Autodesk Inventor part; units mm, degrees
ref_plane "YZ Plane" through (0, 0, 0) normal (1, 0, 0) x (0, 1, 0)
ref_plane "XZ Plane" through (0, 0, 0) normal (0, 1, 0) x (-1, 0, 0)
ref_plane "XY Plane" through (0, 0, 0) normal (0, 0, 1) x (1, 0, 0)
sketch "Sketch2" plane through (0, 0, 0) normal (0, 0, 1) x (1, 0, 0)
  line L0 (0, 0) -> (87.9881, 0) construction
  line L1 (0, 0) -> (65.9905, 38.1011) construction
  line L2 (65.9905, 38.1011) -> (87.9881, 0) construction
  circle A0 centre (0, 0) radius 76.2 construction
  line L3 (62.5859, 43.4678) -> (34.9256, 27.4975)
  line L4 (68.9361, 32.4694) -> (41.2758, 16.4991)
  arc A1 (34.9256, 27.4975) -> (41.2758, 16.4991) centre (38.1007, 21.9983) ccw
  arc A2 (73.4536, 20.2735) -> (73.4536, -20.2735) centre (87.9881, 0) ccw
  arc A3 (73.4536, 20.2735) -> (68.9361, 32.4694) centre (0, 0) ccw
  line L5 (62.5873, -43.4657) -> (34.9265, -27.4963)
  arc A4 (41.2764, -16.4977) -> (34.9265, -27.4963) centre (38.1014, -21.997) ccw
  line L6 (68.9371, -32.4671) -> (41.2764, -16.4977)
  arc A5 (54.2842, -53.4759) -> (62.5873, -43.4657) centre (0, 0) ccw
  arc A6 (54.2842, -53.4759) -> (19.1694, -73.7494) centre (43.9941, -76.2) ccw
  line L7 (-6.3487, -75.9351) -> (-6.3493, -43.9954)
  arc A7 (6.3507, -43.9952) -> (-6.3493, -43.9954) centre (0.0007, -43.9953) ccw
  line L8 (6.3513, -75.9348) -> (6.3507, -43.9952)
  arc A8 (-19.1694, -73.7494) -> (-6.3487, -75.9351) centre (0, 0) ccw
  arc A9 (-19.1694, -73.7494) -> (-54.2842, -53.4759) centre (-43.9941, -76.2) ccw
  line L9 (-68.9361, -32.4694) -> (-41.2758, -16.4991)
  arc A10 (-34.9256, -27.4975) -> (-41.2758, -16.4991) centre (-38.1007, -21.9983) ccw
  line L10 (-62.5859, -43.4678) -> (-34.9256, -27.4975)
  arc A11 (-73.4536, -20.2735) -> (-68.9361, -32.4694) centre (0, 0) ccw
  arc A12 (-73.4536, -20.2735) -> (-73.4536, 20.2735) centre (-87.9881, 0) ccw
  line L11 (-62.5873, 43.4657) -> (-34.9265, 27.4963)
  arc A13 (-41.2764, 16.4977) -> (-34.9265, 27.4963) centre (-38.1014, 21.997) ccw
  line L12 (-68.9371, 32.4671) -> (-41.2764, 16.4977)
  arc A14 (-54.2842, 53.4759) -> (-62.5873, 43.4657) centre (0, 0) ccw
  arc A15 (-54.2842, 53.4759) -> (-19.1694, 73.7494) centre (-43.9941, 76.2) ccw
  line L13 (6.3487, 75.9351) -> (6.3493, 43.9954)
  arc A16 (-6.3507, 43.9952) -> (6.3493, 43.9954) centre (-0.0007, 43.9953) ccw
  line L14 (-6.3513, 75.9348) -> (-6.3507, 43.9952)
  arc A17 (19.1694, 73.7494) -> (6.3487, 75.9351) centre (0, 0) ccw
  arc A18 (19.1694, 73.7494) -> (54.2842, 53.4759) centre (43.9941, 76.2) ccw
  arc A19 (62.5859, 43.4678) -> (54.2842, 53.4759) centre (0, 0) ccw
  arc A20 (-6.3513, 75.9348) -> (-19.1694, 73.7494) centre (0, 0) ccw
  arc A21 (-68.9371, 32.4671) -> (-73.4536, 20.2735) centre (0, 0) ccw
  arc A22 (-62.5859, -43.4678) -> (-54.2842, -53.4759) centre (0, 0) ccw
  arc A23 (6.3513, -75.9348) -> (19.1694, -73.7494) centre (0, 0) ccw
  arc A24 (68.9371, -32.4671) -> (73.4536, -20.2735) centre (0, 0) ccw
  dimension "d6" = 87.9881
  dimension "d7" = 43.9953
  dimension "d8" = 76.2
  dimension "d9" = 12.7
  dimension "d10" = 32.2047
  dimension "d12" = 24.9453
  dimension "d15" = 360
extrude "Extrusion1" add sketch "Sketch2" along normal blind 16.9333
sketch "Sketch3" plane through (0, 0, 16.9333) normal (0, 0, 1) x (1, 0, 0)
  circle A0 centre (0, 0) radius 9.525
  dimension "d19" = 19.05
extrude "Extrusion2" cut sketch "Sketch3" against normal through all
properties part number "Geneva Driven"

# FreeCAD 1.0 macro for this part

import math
import FreeCAD as App
import Part
import Sketcher

V = App.Vector
Q = App.Units.Quantity

doc = App.newDocument("Part")
body = doc.addObject("PartDesign::Body", "Body")

sketch1 = body.newObject("Sketcher::SketchObject", "Sketch")
sketch1.AttachmentSupport = (doc.getObject("XY_Plane"), [""])
sketch1.MapMode = "FlatFace"
sketch1.addGeometry(Part.LineSegment(V(34.9256, 27.4975, 0), V(62.5859, 43.4678, 0)), False)
sketch1.addGeometry(Part.ArcOfCircle(Part.Circle(V(-0.001244, -0.000945, 0), V(0, 0, 1), 76.20159), math.radians(34.781198), math.radians(44.570087)), False)
sketch1.addGeometry(Part.ArcOfCircle(Part.Circle(V(43.9941, 76.2, 0), V(0, 0, 1), 24.945364), math.radians(-174.362244), math.radians(-65.637669)), False)
sketch1.addGeometry(Part.ArcOfCircle(Part.Circle(V(-0.001041, -0.004847, 0), V(0, 0, 1), 76.204952), math.radians(75.429905), math.radians(85.220315)), False)
sketch1.addGeometry(Part.LineSegment(V(6.3487, 75.9351, 0), V(6.3493, 43.9954, 0)), False)
sketch1.addGeometry(Part.ArcOfCircle(Part.Circle(V(-0.0007, 43.9953, 0), V(0, 0, 1), 6.35), math.radians(-179.999098), math.radians(0.000902)), False)
sketch1.addGeometry(Part.LineSegment(V(-6.3507, 43.9952, 0), V(-6.3513, 75.9348, 0)), False)
sketch1.addGeometry(Part.ArcOfCircle(Part.Circle(V(0.000797, -0.006284, 0), V(0, 0, 1), 76.206282), math.radians(94.781379), math.radians(104.569646)), False)
sketch1.addGeometry(Part.ArcOfCircle(Part.Circle(V(-43.9941, 76.2, 0), V(0, 0, 1), 24.945358), math.radians(-114.362331), math.radians(-5.637756)), False)
sketch1.addGeometry(Part.ArcOfCircle(Part.Circle(V(-0.006044, 0.005465, 0), V(0, 0, 1), 76.1919), math.radians(135.429501), math.radians(145.221533)), False)
sketch1.addGeometry(Part.LineSegment(V(-62.5873, 43.4657, 0), V(-34.9265, 27.4963, 0)), False)
sketch1.addGeometry(Part.ArcOfCircle(Part.Circle(V(-38.1014, 21.997, 0), V(0, 0, 1), 6.350034), math.radians(-119.999825), math.radians(60.000956)), False)
sketch1.addGeometry(Part.LineSegment(V(-41.2764, 16.4977, 0), V(-68.9371, 32.4671, 0)), False)
sketch1.addGeometry(Part.ArcOfCircle(Part.Circle(V(0.008152, -0.003422, 0), V(0, 0, 1), 76.208809), math.radians(154.781395), math.radians(164.569423)), False)
sketch1.addGeometry(Part.ArcOfCircle(Part.Circle(V(-87.9881, 0, 0), V(0, 0, 1), 24.94527), math.radians(-54.362462), math.radians(54.362462)), False)
sketch1.addGeometry(Part.ArcOfCircle(Part.Circle(V(0.001426, 0.00046, 0), V(0, 0, 1), 76.201537), math.radians(-164.570225), math.radians(-154.77937)), False)
sketch1.addGeometry(Part.LineSegment(V(-68.9361, -32.4694, 0), V(-41.2758, -16.4991, 0)), False)
sketch1.addGeometry(Part.ArcOfCircle(Part.Circle(V(-38.1007, -21.9983, 0), V(0, 0, 1), 6.349997), math.radians(-59.998942), math.radians(120.001058)), False)
sketch1.addGeometry(Part.LineSegment(V(-34.9256, -27.4975, 0), V(-62.5859, -43.4678, 0)), False)
sketch1.addGeometry(Part.ArcOfCircle(Part.Circle(V(0.001244, 0.000945, 0), V(0, 0, 1), 76.20159), math.radians(-145.218802), math.radians(-135.429913)), False)
sketch1.addGeometry(Part.ArcOfCircle(Part.Circle(V(-43.9941, -76.2, 0), V(0, 0, 1), 24.945364), math.radians(5.637756), math.radians(114.362331)), False)
sketch1.addGeometry(Part.ArcOfCircle(Part.Circle(V(0.001041, 0.004847, 0), V(0, 0, 1), 76.204952), math.radians(-104.570095), math.radians(-94.779685)), False)
sketch1.addGeometry(Part.LineSegment(V(-6.3487, -75.9351, 0), V(-6.3493, -43.9954, 0)), False)
sketch1.addGeometry(Part.ArcOfCircle(Part.Circle(V(0.0007, -43.9953, 0), V(0, 0, 1), 6.35), math.radians(0.000902), math.radians(180.000902)), False)
sketch1.addGeometry(Part.LineSegment(V(6.3507, -43.9952, 0), V(6.3513, -75.9348, 0)), False)
sketch1.addGeometry(Part.ArcOfCircle(Part.Circle(V(-0.000797, 0.006284, 0), V(0, 0, 1), 76.206282), math.radians(-85.218621), math.radians(-75.430354)), False)
sketch1.addGeometry(Part.ArcOfCircle(Part.Circle(V(43.9941, -76.2, 0), V(0, 0, 1), 24.945358), math.radians(65.637669), math.radians(174.362244)), False)
sketch1.addGeometry(Part.ArcOfCircle(Part.Circle(V(0.006044, -0.005465, 0), V(0, 0, 1), 76.1919), math.radians(-44.570499), math.radians(-34.778467)), False)
sketch1.addGeometry(Part.LineSegment(V(62.5873, -43.4657, 0), V(34.9265, -27.4963, 0)), False)
sketch1.addGeometry(Part.ArcOfCircle(Part.Circle(V(38.1014, -21.997, 0), V(0, 0, 1), 6.350034), math.radians(60.000175), math.radians(240.000956)), False)
sketch1.addGeometry(Part.LineSegment(V(41.2764, -16.4977, 0), V(68.9371, -32.4671, 0)), False)
sketch1.addGeometry(Part.ArcOfCircle(Part.Circle(V(-0.008152, 0.003422, 0), V(0, 0, 1), 76.208809), math.radians(-25.218605), math.radians(-15.430577)), False)
sketch1.addGeometry(Part.ArcOfCircle(Part.Circle(V(87.9881, 0, 0), V(0, 0, 1), 24.94527), math.radians(125.637538), math.radians(234.362462)), False)
sketch1.addGeometry(Part.ArcOfCircle(Part.Circle(V(-0.001426, -0.00046, 0), V(0, 0, 1), 76.201537), math.radians(15.429775), math.radians(25.22063)), False)
sketch1.addGeometry(Part.LineSegment(V(68.9361, 32.4694, 0), V(41.2758, 16.4991, 0)), False)
sketch1.addGeometry(Part.ArcOfCircle(Part.Circle(V(38.1007, 21.9983, 0), V(0, 0, 1), 6.349997), math.radians(120.001058), math.radians(300.001058)), False)
sketch1.addConstraint(Sketcher.Constraint("Coincident", 0, 2, 1, 1))
sketch1.addConstraint(Sketcher.Constraint("Coincident", 1, 2, 2, 2))
sketch1.addConstraint(Sketcher.Constraint("Coincident", 2, 1, 3, 1))
sketch1.addConstraint(Sketcher.Constraint("Coincident", 3, 2, 4, 1))
sketch1.addConstraint(Sketcher.Constraint("Coincident", 4, 2, 5, 2))
sketch1.addConstraint(Sketcher.Constraint("Coincident", 5, 1, 6, 1))
sketch1.addConstraint(Sketcher.Constraint("Coincident", 6, 2, 7, 1))
sketch1.addConstraint(Sketcher.Constraint("Coincident", 7, 2, 8, 2))
sketch1.addConstraint(Sketcher.Constraint("Coincident", 8, 1, 9, 1))
sketch1.addConstraint(Sketcher.Constraint("Coincident", 9, 2, 10, 1))
sketch1.addConstraint(Sketcher.Constraint("Coincident", 10, 2, 11, 2))
sketch1.addConstraint(Sketcher.Constraint("Coincident", 11, 1, 12, 1))
sketch1.addConstraint(Sketcher.Constraint("Coincident", 12, 2, 13, 1))
sketch1.addConstraint(Sketcher.Constraint("Coincident", 13, 2, 14, 2))
sketch1.addConstraint(Sketcher.Constraint("Coincident", 14, 1, 15, 1))
sketch1.addConstraint(Sketcher.Constraint("Coincident", 15, 2, 16, 1))
sketch1.addConstraint(Sketcher.Constraint("Coincident", 16, 2, 17, 2))
sketch1.addConstraint(Sketcher.Constraint("Coincident", 17, 1, 18, 1))
sketch1.addConstraint(Sketcher.Constraint("Coincident", 18, 2, 19, 1))
sketch1.addConstraint(Sketcher.Constraint("Coincident", 19, 2, 20, 2))
sketch1.addConstraint(Sketcher.Constraint("Coincident", 20, 1, 21, 1))
sketch1.addConstraint(Sketcher.Constraint("Coincident", 21, 2, 22, 1))
sketch1.addConstraint(Sketcher.Constraint("Coincident", 22, 2, 23, 2))
sketch1.addConstraint(Sketcher.Constraint("Coincident", 23, 1, 24, 1))
sketch1.addConstraint(Sketcher.Constraint("Coincident", 24, 2, 25, 1))
sketch1.addConstraint(Sketcher.Constraint("Coincident", 25, 2, 26, 2))
sketch1.addConstraint(Sketcher.Constraint("Coincident", 26, 1, 27, 1))
sketch1.addConstraint(Sketcher.Constraint("Coincident", 27, 2, 28, 1))
sketch1.addConstraint(Sketcher.Constraint("Coincident", 28, 2, 29, 2))
sketch1.addConstraint(Sketcher.Constraint("Coincident", 29, 1, 30, 1))
sketch1.addConstraint(Sketcher.Constraint("Coincident", 30, 2, 31, 1))
sketch1.addConstraint(Sketcher.Constraint("Coincident", 31, 2, 32, 2))
sketch1.addConstraint(Sketcher.Constraint("Coincident", 32, 1, 33, 1))
sketch1.addConstraint(Sketcher.Constraint("Coincident", 33, 2, 34, 1))
sketch1.addConstraint(Sketcher.Constraint("Coincident", 34, 2, 35, 2))
sketch1.addConstraint(Sketcher.Constraint("Coincident", 35, 1, 0, 1))
sketch1.addConstraint(Sketcher.Constraint("PointOnObject", 14, 3, -1))
sketch1.addConstraint(Sketcher.Constraint("PointOnObject", 32, 3, -1))
sketch1.addConstraint(Sketcher.Constraint("Radius", 5, Q("0.25 in")))
sketch1.addConstraint(Sketcher.Constraint("Radius", 11, Q("0.25 in")))
sketch1.addConstraint(Sketcher.Constraint("Radius", 17, Q("0.25 in")))
sketch1.addConstraint(Sketcher.Constraint("Radius", 23, Q("0.25 in")))
sketch1.addConstraint(Sketcher.Constraint("Radius", 29, Q("0.25 in")))
sketch1.addConstraint(Sketcher.Constraint("Radius", 35, Q("0.25 in")))
sketch1.addConstraint(Sketcher.Constraint("DistanceY", -1, 1, 2, 3, Q("3 in")))
sketch1.addConstraint(Sketcher.Constraint("DistanceY", -1, 1, 8, 3, Q("3 in")))
sketch1.addConstraint(Sketcher.Constraint("DistanceY", 20, 3, -1, 1, Q("3 in")))
sketch1.addConstraint(Sketcher.Constraint("DistanceY", 26, 3, -1, 1, Q("3 in")))
sketch1.addConstraint(Sketcher.Constraint("Radius", 2, Q("0.9821 in")))
sketch1.addConstraint(Sketcher.Constraint("Radius", 8, Q("0.9821 in")))
sketch1.addConstraint(Sketcher.Constraint("Radius", 14, Q("0.9821 in")))
sketch1.addConstraint(Sketcher.Constraint("Radius", 20, Q("0.9821 in")))
sketch1.addConstraint(Sketcher.Constraint("Radius", 26, Q("0.9821 in")))
sketch1.addConstraint(Sketcher.Constraint("Radius", 32, Q("0.9821 in")))
sketch1.addConstraint(Sketcher.Constraint("DistanceX", 6, 2, 3, 2, Q("0.5 in")))
sketch1.addConstraint(Sketcher.Constraint("DistanceX", 21, 2, 24, 2, Q("0.5 in")))
sketch1.addConstraint(Sketcher.Constraint("DistanceX", 1, 3, 3, 3, Q("0 in")))
sketch1.addConstraint(Sketcher.Constraint("DistanceX", 19, 3, 15, 3, Q("0 in")))
sketch1.addConstraint(Sketcher.Constraint("DistanceX", 21, 3, 19, 3, Q("0 in")))
sketch1.addConstraint(Sketcher.Constraint("DistanceX", 33, 3, 1, 3, Q("0 in")))
sketch1.addConstraint(Sketcher.Constraint("DistanceY", 5, 1, 5, 3, Q("0 in")))
sketch1.addConstraint(Sketcher.Constraint("DistanceY", 5, 1, 4, 2, Q("0 in")))
sketch1.addConstraint(Sketcher.Constraint("DistanceY", 6, 2, 3, 2, Q("0 in")))
sketch1.addConstraint(Sketcher.Constraint("DistanceY", 23, 3, 23, 1, Q("0 in")))
sketch1.addConstraint(Sketcher.Constraint("DistanceY", 22, 2, 23, 1, Q("0 in")))
sketch1.addConstraint(Sketcher.Constraint("DistanceY", 21, 2, 24, 2, Q("0 in")))
sketch1.addConstraint(Sketcher.Constraint("DistanceY", -1, 1, 5, 3, Q("1.7321 in")))
sketch1.addConstraint(Sketcher.Constraint("DistanceX", 14, 3, -1, 1, Q("3.4641 in")))
sketch1.addConstraint(Sketcher.Constraint("DistanceY", 23, 3, -1, 1, Q("1.7321 in")))
sketch1.addConstraint(Sketcher.Constraint("DistanceX", -1, 1, 32, 3, Q("3.4641 in")))
sketch1.addConstraint(Sketcher.Constraint("Radius", 3, Q("3.0002 in")))
sketch1.addConstraint(Sketcher.Constraint("Radius", 21, Q("3.0002 in")))
sketch1.addConstraint(Sketcher.Constraint("DistanceX", 1, 3, 2, 3, Q("1.7321 in")))
sketch1.addConstraint(Sketcher.Constraint("DistanceX", 8, 3, 2, 3, Q("3.4641 in")))
sketch1.addConstraint(Sketcher.Constraint("DistanceX", 11, 3, 1, 3, Q("1.5 in")))
sketch1.addConstraint(Sketcher.Constraint("DistanceY", 17, 3, 11, 3, Q("1.7321 in")))
sketch1.addConstraint(Sketcher.Constraint("DistanceX", 3, 3, 26, 3, Q("1.7321 in")))
sketch1.addConstraint(Sketcher.Constraint("DistanceX", 15, 3, 29, 3, Q("1.5 in")))
sketch1.addConstraint(Sketcher.Constraint("Radius", 1, 76.2016))
sketch1.addConstraint(Sketcher.Constraint("Radius", 7, 76.2063))
sketch1.addConstraint(Sketcher.Constraint("Radius", 9, 76.192))
sketch1.addConstraint(Sketcher.Constraint("Radius", 13, 76.2088))
sketch1.addConstraint(Sketcher.Constraint("Radius", 15, 76.2015))
sketch1.addConstraint(Sketcher.Constraint("Radius", 19, 76.2016))
sketch1.addConstraint(Sketcher.Constraint("Radius", 25, 76.2063))
sketch1.addConstraint(Sketcher.Constraint("Radius", 27, 76.192))
sketch1.addConstraint(Sketcher.Constraint("Radius", 31, 76.2088))
sketch1.addConstraint(Sketcher.Constraint("Radius", 33, 76.2015))
sketch1.addConstraint(Sketcher.Constraint("DistanceX", 5, 3, 2, 3, 43.9948))
sketch1.addConstraint(Sketcher.Constraint("DistanceX", 8, 3, 7, 3, 43.995))
sketch1.addConstraint(Sketcher.Constraint("DistanceX", 20, 3, 7, 3, 43.995))
sketch1.addConstraint(Sketcher.Constraint("DistanceY", 26, 3, 15, 3, 76.2005))
sketch1.addConstraint(Sketcher.Constraint("DistanceX", 25, 3, 4, 2, Q("0.25 in")))
sketch1.addConstraint(Sketcher.Constraint("DistanceX", 5, 1, 3, 2, 12.6994))
sketch1.addConstraint(Sketcher.Constraint("DistanceX", 11, 1, 10, 2, Q("0.25 in")))
sketch1.addConstraint(Sketcher.Constraint("DistanceX", 12, 2, 9, 2, Q("0.25 in")))
sketch1.addConstraint(Sketcher.Constraint("DistanceX", 16, 2, 17, 1, Q("0.25 in")))
sketch1.addConstraint(Sketcher.Constraint("DistanceX", 15, 2, 18, 2, Q("0.25 in")))
sketch1.addConstraint(Sketcher.Constraint("DistanceX", 21, 2, 23, 1, 12.6994))
sketch1.addConstraint(Sketcher.Constraint("DistanceX", 28, 2, 29, 1, Q("0.25 in")))
sketch1.addConstraint(Sketcher.Constraint("DistanceX", 27, 2, 30, 2, Q("0.25 in")))
sketch1.addConstraint(Sketcher.Constraint("DistanceX", 0, 2, 33, 2, Q("0.25 in")))
sketch1.addConstraint(Sketcher.Constraint("DistanceX", 35, 1, 34, 2, Q("0.25 in")))
sketch1.addConstraint(Sketcher.Constraint("DistanceX", -1, 1, 0, 2, Q("2.464 in")))
sketch1.addConstraint(Sketcher.Constraint("DistanceX", 18, 2, -1, 1, Q("2.464 in")))
sketch1.addConstraint(Sketcher.Constraint("DistanceX", 15, 3, 26, 3, Q("1.732 in")))
sketch1.addConstraint(Sketcher.Constraint("DistanceX", 9, 2, 11, 3, Q("0.964 in")))
sketch1.addConstraint(Sketcher.Constraint("DistanceX", 11, 3, 10, 2, Q("0.125 in")))
sketch1.addConstraint(Sketcher.Constraint("DistanceX", 15, 2, 17, 3, Q("1.214 in")))
sketch1.addConstraint(Sketcher.Constraint("DistanceX", 16, 2, 17, 3, Q("0.125 in")))
sketch1.addConstraint(Sketcher.Constraint("DistanceY", 18, 2, 15, 2, Q("0.433 in")))
sketch1.addConstraint(Sketcher.Constraint("DistanceX", 21, 2, 26, 3, Q("1.982 in")))
sketch1.addConstraint(Sketcher.Constraint("DistanceX", 29, 3, 27, 2, Q("0.964 in")))
sketch1.addConstraint(Sketcher.Constraint("DistanceX", 28, 2, 29, 3, Q("0.125 in")))
sketch1.addConstraint(Sketcher.Constraint("DistanceY", 33, 2, 0, 2, Q("0.433 in")))
sketch1.addConstraint(Sketcher.Constraint("DistanceX", 35, 3, 33, 2, Q("1.214 in")))
sketch1.addConstraint(Sketcher.Constraint("DistanceX", 35, 3, 34, 2, Q("0.125 in")))
sketch1.addConstraint(Sketcher.Constraint("DistanceY", 3, 3, -1, 1, Q("0.0002 in")))
sketch1.addConstraint(Sketcher.Constraint("DistanceY", -1, 1, 21, 3, Q("0.0002 in")))
sketch1.addConstraint(Sketcher.Constraint("DistanceX", -1, 1, 2, 1, Q("0.7547 in")))
sketch1.addConstraint(Sketcher.Constraint("DistanceY", 7, 3, 1, 3, Q("0.0002 in")))
sketch1.addConstraint(Sketcher.Constraint("DistanceX", 9, 3, 1, 3, Q("0.0002 in")))
sketch1.addConstraint(Sketcher.Constraint("DistanceY", 3, 3, 9, 3, Q("0.0004 in")))
sketch1.addConstraint(Sketcher.Constraint("DistanceY", 9, 3, 11, 3, Q("0.8658 in")))
sketch1.addConstraint(Sketcher.Constraint("DistanceX", 7, 3, 13, 3, Q("0.0003 in")))
sketch1.addConstraint(Sketcher.Constraint("DistanceY", 13, 3, 1, 3, Q("0.0001 in")))
sketch1.addConstraint(Sketcher.Constraint("DistanceX", 7, 3, 27, 3, Q("0.0002 in")))
sketch1.addConstraint(Sketcher.Constraint("DistanceY", 29, 3, 13, 3, Q("0.8659 in")))
sketch1.addConstraint(Sketcher.Constraint("DistanceY", 29, 3, 27, 3, Q("0.8658 in")))
sketch1.addConstraint(Sketcher.Constraint("DistanceX", 31, 3, 25, 3, Q("0.0003 in")))
sketch1.addConstraint(Sketcher.Constraint("DistanceY", 19, 3, 31, 3, Q("0.0001 in")))
sketch1.addConstraint(Sketcher.Constraint("DistanceY", 13, 3, 35, 3, Q("0.8662 in")))
pad1 = body.newObject("PartDesign::Pad", "Pad")
pad1.Profile = sketch1
pad1.Length = 16.9333

sketch2 = body.newObject("Sketcher::SketchObject", "Sketch001")
sketch2.AttachmentSupport = (doc.getObject("XY_Plane"), [""])
sketch2.MapMode = "FlatFace"
sketch2.AttachmentOffset = App.Placement(V(0, 0, 16.9333), App.Rotation())
sketch2.addGeometry(Part.Circle(V(0, 0, 0), V(0, 0, 1), 10), False)
sketch2.addConstraint(Sketcher.Constraint("Coincident", 0, 3, -1, 1))
sketch2.addConstraint(Sketcher.Constraint("Diameter", 0, Q("0.75 in")))
pocket1 = body.newObject("PartDesign::Pocket", "Pocket")
pocket1.Profile = sketch2
pocket1.Type = "ThroughAll"

doc.recompute()
